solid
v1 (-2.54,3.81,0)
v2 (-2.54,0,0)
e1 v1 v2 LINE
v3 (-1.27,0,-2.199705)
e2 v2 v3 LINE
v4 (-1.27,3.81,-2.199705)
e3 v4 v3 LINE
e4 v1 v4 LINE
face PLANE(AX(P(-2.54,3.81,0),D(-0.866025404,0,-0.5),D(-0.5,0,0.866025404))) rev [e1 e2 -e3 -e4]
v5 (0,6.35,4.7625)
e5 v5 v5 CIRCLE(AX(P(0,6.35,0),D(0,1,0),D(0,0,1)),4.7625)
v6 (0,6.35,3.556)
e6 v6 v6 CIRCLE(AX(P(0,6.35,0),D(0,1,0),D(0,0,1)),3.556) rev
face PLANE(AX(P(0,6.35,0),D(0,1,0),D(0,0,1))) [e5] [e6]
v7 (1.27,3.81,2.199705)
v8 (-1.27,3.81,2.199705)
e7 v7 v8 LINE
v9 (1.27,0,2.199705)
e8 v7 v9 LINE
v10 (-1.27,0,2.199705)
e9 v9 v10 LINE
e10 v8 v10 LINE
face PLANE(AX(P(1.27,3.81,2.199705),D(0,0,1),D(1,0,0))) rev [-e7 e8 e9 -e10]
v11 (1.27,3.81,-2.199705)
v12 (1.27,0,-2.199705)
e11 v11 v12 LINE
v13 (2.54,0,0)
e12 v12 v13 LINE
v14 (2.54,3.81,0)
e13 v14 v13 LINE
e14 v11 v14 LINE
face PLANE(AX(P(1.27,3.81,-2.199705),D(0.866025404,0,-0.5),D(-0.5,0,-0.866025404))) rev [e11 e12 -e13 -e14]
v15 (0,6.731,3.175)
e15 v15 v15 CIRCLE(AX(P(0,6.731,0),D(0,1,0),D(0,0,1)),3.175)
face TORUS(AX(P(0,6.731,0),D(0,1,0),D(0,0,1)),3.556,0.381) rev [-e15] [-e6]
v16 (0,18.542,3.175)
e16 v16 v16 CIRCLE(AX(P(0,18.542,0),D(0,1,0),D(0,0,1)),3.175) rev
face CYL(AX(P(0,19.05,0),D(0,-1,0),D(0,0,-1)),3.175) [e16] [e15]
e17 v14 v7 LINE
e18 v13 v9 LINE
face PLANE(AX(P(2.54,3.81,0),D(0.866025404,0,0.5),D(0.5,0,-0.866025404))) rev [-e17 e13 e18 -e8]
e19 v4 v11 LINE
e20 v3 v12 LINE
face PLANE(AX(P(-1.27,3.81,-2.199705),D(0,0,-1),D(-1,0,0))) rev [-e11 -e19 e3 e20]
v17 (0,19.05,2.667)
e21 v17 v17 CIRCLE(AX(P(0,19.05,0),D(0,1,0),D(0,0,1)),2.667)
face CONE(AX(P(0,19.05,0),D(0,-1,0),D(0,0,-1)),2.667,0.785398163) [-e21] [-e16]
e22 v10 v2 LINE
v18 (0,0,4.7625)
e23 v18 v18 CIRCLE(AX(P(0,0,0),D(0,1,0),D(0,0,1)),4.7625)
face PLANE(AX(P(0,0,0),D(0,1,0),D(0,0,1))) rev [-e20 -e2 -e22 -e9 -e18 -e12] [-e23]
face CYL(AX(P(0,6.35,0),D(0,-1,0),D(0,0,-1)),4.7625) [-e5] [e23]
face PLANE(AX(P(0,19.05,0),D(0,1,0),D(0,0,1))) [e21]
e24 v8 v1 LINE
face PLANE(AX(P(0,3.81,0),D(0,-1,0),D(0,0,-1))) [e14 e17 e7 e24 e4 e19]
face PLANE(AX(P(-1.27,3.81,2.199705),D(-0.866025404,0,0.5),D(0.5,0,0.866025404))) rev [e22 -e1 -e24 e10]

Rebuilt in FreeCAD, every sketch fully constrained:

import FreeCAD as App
import Part
import Sketcher
Q = App.Units.Quantity


def edges_at(feature, points):
    """Names of the edges that pass closest to the given points."""
    edges = feature.Shape.Edges
    near = lambda p: min(range(len(edges)), key=lambda i: edges[i].distToShape(Part.Vertex(*p))[0])
    return sorted({f"Edge{near(p) + 1}" for p in points})


def add_polygon(sketch, points):
    """Adds a closed chain of lines whose ends are joined by coincident constraints."""
    first, n = sketch.GeometryCount, len(points)
    for a, b in zip(points, points[1:] + points[:1]):
        sketch.addGeometry(Part.LineSegment(App.Vector(*a, 0), App.Vector(*b, 0)), False)
    for i in range(n):
        sketch.addConstraint(Sketcher.Constraint("Coincident", first + i, 2, first + (i + 1) % n, 1))

doc = App.newDocument("Part")
params = doc.addObject("Spreadsheet::Sheet", "Params")
for row, (alias, value) in enumerate([
    ("sketch1_diameter", "0.375 in"),
    ("pad1_length", "0.25 in"),
    ("sketch2_width", "0.1 in"),
    ("sketch2_length", "0.1 in"),
    ("pocket1_length", "0.15 in"),
    ("sketch3_diameter", "0.25 in"),
    ("pad2_length", "0.5 in"),
    ("fillet_radius", "0.015 in"),
    ("chamfer_size", "0.02 in"),
], start=1):
    params.set(f"A{row}", alias)
    params.set(f"B{row}", "=" + value)
    params.setAlias(f"B{row}", alias)

body = doc.addObject("PartDesign::Body", "Body")

# Sketch on XZ plane
sketch1 = body.newObject("Sketcher::SketchObject", "Sketch")
sketch1.AttachmentSupport = (doc.getObject("XZ_Plane"), [""])
sketch1.MapMode = "FlatFace"
sketch1.addGeometry(Part.Circle(App.Vector(0, 0, 0), App.Vector(0, 0, 1), 4.8), False)
sketch1.addConstraint([
    Sketcher.Constraint("Coincident", 0, 3, -1, 1),
    Sketcher.Constraint("Diameter", 0, Q("0.375 in")),
])
sketch1.setExpression("Constraints[1]", "Params.sketch1_diameter")
pad1 = body.newObject("PartDesign::Pad", "Pad")
pad1.Profile = sketch1
pad1.setExpression("Length", "Params.pad1_length")
pad1.Reversed = True

# Sketch on XZ plane
sketch2 = body.newObject("Sketcher::SketchObject", "Sketch001")
sketch2.AttachmentSupport = (doc.getObject("XZ_Plane"), [""])
sketch2.MapMode = "FlatFace"
add_polygon(sketch2, [(2.5, 0), (1.3, 2.2), (-1.3, 2.2), (-2.5, 0), (-1.3, -2.2), (1.3, -2.2)])  # lines 0-5
sketch2.addConstraint([
    Sketcher.Constraint("Horizontal", 1),
    Sketcher.Constraint("Horizontal", 4),
    Sketcher.Constraint("Symmetric", 0, 2, 3, 2, -1, 1),
    Sketcher.Constraint("Symmetric", 2, 2, 5, 2, -1, 1),
    Sketcher.Constraint("PointOnObject", 2, 2, -1),
    Sketcher.Constraint("Parallel", 2, 5),
    Sketcher.Constraint("Vertical", 1, 2, 3, 2),
    Sketcher.Constraint("DistanceX", 1, 2, 1, 1, Q("0.1 in")),
    Sketcher.Constraint("Angle", 0, Q("120 deg")),
    Sketcher.Constraint("Distance", 0, Q("0.1 in")),
])
sketch2.setExpression("Constraints[13]", "Params.sketch2_width")
sketch2.setExpression("Constraints[15]", "Params.sketch2_length")
pocket1 = body.newObject("PartDesign::Pocket", "Pocket")
pocket1.Profile = sketch2
pocket1.setExpression("Length", "Params.pocket1_length")

# Sketch on XZ plane
sketch3 = body.newObject("Sketcher::SketchObject", "Sketch002")
sketch3.AttachmentSupport = (doc.getObject("XZ_Plane"), [""])
sketch3.MapMode = "FlatFace"
sketch3.AttachmentOffset = App.Placement(App.Vector(0, 0, -0.25 * 25.4), App.Rotation())
sketch3.addGeometry(Part.Circle(App.Vector(0, 0, 0), App.Vector(0, 0, 1), 3.2), False)
sketch3.addConstraint([
    Sketcher.Constraint("Coincident", 0, 3, -1, 1),
    Sketcher.Constraint("Diameter", 0, Q("0.25 in")),
])
sketch3.setExpression("Constraints[1]", "Params.sketch3_diameter")
pad2 = body.newObject("PartDesign::Pad", "Pad001")
pad2.Profile = sketch3
pad2.setExpression("Length", "Params.pad2_length")
pad2.Reversed = True
doc.recompute()

fillet = body.newObject("PartDesign::Fillet", "Fillet")
fillet.Base = (pad2, edges_at(pad2, [(-3.175, 6.35, 0)]))
fillet.setExpression("Radius", "Params.fillet_radius")
doc.recompute()

chamfer = body.newObject("PartDesign::Chamfer", "Chamfer")
chamfer.Base = (fillet, edges_at(fillet, [(-3.175, 19.05, 0)]))
chamfer.setExpression("Size", "Params.chamfer_size")

doc.recompute()
